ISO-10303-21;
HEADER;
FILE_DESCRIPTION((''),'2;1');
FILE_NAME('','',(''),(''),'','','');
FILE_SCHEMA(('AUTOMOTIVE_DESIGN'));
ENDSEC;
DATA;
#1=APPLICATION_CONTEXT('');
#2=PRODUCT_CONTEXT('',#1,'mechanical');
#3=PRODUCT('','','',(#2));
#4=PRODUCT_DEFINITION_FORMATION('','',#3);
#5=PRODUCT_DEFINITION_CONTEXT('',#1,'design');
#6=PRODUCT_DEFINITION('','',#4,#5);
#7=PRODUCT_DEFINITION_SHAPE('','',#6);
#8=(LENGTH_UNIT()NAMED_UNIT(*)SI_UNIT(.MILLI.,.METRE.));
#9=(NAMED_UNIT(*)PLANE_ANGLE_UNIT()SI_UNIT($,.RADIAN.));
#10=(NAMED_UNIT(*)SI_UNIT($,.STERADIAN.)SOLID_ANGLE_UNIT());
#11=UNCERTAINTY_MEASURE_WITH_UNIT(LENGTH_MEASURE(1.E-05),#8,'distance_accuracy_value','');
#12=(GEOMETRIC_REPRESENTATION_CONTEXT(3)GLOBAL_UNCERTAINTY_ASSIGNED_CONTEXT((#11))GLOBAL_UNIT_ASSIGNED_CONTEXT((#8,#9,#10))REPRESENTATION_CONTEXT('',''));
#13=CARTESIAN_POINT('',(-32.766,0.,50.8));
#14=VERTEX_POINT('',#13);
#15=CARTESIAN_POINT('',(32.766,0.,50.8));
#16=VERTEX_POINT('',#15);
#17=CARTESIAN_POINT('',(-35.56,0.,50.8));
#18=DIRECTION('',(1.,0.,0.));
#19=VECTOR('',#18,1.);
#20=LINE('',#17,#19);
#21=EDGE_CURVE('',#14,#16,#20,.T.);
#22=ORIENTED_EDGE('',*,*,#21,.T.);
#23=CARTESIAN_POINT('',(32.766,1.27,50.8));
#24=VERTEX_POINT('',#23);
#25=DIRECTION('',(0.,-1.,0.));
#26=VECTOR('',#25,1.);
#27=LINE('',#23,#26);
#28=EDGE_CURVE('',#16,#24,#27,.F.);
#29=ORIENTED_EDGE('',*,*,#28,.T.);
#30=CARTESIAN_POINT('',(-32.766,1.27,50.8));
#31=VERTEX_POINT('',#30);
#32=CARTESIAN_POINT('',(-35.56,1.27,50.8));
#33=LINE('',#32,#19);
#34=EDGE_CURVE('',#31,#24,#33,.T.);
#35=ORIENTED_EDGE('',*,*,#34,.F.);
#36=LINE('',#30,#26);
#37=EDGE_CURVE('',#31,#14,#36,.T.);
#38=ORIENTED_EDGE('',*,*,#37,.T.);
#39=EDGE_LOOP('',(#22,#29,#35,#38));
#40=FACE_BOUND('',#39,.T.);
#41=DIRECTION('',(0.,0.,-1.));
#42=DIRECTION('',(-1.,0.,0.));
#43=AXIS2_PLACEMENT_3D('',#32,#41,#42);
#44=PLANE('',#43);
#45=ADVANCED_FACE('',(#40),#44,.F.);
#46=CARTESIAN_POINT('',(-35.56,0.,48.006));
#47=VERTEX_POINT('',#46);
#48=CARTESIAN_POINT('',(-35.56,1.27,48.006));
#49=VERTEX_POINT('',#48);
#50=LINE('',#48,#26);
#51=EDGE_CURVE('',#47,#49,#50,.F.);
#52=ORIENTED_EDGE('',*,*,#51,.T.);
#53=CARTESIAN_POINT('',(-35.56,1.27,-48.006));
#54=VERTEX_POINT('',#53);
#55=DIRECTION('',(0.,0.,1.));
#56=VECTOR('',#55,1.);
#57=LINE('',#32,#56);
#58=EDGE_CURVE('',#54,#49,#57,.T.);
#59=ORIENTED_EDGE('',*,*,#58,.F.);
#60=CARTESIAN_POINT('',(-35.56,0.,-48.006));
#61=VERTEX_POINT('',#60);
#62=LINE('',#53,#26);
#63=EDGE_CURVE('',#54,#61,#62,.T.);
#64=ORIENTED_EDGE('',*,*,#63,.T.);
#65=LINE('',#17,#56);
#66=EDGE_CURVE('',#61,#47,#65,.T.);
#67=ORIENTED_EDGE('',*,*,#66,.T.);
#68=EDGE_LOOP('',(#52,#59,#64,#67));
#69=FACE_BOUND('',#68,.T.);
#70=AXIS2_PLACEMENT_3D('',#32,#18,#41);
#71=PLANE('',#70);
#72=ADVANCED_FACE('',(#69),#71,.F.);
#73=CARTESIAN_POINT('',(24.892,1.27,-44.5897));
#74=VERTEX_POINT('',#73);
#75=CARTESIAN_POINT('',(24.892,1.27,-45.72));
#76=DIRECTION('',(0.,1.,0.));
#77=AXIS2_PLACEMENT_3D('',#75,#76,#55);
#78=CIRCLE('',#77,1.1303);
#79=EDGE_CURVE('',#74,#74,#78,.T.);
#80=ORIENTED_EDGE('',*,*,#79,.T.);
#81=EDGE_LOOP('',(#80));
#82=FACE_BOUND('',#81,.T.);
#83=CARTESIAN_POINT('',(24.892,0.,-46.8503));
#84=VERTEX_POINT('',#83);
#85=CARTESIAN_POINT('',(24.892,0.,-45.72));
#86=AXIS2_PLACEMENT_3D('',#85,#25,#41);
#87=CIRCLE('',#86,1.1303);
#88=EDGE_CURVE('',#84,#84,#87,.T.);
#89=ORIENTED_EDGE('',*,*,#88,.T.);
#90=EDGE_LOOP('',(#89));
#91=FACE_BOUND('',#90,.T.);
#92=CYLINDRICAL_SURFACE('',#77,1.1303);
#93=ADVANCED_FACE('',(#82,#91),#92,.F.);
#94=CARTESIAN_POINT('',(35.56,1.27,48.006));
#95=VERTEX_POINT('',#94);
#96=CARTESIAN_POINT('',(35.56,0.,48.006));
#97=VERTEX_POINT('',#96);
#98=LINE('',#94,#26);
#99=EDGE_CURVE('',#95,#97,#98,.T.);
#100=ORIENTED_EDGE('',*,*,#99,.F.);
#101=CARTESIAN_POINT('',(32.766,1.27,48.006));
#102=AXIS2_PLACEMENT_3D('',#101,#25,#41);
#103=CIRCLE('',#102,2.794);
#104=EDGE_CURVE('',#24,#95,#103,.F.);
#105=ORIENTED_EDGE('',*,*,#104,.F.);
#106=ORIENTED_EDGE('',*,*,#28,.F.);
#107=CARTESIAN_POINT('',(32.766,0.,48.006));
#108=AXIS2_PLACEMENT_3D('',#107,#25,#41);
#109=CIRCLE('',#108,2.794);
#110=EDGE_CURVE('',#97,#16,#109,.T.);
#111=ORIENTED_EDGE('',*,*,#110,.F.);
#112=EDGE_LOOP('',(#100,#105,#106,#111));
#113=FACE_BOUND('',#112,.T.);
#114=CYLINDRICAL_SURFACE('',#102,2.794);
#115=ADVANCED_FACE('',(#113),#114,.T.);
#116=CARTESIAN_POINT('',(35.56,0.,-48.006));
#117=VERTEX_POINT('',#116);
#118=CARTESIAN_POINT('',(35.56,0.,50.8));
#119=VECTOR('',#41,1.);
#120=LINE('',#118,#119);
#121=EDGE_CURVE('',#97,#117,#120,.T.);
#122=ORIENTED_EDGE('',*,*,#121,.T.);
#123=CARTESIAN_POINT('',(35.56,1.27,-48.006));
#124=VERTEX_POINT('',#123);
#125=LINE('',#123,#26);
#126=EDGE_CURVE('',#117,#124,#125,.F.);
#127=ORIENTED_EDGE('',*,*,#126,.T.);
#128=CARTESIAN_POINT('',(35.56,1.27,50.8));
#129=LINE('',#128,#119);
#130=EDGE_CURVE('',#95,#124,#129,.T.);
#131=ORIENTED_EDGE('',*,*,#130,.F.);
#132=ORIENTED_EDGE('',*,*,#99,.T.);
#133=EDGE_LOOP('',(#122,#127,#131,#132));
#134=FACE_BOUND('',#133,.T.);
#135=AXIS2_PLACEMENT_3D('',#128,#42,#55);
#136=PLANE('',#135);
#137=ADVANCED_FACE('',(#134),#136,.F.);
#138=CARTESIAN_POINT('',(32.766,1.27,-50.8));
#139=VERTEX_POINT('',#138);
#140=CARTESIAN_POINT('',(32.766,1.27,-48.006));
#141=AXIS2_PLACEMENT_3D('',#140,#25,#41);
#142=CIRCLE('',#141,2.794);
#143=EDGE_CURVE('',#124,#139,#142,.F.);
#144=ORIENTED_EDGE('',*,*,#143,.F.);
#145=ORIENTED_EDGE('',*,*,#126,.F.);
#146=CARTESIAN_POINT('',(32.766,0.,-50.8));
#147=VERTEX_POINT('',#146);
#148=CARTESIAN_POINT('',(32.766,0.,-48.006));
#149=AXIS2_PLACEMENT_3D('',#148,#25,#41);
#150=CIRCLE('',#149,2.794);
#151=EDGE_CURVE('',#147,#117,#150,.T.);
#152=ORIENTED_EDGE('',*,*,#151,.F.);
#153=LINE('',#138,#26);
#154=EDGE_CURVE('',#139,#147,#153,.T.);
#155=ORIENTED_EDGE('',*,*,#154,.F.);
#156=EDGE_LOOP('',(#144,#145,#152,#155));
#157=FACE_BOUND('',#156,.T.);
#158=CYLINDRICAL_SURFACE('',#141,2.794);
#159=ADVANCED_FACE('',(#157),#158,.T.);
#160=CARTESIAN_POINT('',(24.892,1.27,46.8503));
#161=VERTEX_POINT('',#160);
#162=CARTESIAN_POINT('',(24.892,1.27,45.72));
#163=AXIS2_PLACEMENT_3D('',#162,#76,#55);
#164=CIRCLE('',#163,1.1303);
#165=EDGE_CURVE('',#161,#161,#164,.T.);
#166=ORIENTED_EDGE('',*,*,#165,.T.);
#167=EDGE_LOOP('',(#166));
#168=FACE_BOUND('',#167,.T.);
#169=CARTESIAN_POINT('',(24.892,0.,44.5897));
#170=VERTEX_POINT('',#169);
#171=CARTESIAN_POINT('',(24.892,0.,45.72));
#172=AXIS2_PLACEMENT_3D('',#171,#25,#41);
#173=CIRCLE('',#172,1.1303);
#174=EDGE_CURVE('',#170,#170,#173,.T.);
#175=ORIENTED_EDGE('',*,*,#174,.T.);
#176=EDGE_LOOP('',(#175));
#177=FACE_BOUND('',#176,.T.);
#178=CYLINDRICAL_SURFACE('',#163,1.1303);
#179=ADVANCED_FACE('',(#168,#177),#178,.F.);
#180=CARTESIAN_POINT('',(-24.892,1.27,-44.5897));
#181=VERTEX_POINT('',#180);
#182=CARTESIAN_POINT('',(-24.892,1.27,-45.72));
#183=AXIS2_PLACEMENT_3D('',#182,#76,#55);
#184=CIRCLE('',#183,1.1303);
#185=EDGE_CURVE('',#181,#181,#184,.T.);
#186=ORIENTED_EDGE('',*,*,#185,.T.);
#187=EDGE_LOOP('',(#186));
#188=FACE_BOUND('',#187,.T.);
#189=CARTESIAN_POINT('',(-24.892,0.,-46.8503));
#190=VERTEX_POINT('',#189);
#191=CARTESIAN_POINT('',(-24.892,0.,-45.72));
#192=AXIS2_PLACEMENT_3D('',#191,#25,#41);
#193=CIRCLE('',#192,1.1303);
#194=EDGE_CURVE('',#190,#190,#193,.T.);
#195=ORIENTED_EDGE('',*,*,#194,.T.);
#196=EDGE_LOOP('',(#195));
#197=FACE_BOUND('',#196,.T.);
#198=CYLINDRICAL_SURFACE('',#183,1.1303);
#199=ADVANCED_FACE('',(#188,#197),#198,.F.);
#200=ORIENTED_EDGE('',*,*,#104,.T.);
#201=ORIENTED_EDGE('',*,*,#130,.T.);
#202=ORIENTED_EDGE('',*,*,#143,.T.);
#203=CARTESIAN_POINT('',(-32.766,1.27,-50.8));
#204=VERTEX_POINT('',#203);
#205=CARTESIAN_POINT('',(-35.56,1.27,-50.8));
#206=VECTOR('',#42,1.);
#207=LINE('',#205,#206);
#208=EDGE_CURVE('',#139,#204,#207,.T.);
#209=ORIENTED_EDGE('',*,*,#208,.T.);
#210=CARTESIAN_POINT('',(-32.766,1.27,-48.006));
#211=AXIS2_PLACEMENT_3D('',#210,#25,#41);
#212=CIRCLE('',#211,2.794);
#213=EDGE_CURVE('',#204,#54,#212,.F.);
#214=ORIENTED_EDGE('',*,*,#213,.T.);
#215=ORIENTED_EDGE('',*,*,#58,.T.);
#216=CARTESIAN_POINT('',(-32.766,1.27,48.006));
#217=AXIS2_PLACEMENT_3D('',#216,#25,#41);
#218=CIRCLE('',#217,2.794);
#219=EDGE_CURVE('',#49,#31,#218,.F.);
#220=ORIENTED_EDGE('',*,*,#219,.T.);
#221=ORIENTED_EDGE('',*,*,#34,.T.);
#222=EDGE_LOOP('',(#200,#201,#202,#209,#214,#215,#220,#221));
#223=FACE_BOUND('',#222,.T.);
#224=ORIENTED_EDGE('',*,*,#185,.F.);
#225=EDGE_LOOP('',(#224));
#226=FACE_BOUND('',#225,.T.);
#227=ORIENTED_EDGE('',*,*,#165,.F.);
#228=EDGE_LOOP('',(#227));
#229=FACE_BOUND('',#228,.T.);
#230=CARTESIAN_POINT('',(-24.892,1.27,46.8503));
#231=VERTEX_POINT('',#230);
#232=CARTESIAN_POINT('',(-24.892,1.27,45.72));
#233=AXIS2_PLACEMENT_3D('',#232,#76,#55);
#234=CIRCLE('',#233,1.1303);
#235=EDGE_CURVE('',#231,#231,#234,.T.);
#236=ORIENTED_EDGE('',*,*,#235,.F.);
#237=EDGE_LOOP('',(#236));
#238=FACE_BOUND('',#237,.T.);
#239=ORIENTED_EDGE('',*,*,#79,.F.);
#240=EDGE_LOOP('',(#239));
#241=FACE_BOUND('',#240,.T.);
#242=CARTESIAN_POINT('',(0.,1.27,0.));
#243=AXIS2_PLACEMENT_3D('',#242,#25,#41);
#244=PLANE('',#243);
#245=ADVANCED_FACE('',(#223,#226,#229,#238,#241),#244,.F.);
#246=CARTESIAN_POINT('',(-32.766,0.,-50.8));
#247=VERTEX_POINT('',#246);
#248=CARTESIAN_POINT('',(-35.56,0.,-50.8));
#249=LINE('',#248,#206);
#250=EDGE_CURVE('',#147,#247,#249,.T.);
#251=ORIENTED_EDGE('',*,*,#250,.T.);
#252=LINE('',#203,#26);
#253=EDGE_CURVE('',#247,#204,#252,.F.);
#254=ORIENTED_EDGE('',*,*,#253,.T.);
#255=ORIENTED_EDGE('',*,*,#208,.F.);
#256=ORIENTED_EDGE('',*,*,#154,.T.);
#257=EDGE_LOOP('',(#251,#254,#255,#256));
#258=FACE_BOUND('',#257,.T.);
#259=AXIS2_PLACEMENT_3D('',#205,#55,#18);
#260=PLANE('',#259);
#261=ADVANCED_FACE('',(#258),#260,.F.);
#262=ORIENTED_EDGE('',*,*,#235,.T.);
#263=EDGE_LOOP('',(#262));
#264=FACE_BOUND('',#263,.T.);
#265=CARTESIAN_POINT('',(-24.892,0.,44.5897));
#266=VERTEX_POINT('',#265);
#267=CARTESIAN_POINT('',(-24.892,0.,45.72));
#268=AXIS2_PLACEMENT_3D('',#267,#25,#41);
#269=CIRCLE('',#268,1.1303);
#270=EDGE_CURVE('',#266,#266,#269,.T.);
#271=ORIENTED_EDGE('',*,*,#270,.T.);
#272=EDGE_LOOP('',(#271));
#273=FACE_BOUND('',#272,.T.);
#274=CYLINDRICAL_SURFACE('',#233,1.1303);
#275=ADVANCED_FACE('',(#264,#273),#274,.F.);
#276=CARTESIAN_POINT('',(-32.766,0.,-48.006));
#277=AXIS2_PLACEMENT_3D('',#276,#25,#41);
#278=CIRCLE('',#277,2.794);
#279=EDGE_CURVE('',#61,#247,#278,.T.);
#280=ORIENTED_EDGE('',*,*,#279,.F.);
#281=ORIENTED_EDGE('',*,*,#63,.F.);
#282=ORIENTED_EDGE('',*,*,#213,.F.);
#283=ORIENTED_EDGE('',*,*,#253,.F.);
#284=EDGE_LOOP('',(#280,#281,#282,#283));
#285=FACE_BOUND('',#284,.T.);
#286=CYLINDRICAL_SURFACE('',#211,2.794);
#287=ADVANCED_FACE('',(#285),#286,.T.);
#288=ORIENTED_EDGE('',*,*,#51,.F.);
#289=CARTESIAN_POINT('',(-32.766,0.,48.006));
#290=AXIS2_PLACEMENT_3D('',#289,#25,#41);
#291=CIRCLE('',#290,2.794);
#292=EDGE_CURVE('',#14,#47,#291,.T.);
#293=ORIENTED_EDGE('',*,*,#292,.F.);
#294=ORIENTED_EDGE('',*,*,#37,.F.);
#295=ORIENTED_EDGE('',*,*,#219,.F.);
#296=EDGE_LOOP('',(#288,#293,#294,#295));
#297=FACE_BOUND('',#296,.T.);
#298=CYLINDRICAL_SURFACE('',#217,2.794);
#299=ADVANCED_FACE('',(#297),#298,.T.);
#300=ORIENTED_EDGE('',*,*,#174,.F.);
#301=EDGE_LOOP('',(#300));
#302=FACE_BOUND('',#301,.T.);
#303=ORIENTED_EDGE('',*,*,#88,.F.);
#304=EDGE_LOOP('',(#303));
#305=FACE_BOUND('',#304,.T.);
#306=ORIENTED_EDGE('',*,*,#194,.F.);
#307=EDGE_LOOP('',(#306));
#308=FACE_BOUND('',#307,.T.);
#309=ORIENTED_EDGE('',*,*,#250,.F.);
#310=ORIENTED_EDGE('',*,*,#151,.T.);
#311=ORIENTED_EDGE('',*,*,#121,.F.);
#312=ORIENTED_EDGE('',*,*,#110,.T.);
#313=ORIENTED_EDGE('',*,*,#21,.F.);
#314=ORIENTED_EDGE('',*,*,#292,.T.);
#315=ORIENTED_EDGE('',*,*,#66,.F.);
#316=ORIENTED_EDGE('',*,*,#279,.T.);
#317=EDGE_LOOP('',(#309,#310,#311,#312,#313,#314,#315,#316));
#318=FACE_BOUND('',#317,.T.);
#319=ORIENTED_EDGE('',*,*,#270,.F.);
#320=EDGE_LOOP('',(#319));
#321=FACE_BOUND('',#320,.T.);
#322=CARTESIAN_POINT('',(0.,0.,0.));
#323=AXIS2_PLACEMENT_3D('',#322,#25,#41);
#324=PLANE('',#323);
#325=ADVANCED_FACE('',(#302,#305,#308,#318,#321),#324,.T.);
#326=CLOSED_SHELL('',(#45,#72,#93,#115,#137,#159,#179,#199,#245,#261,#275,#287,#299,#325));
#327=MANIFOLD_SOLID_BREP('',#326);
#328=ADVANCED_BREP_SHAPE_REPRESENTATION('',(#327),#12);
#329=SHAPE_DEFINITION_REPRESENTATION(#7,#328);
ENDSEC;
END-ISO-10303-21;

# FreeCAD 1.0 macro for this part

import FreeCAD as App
import Part
import Sketcher
from FreeCAD import Vector
Q = App.Units.Quantity


def edges_at(feature, points):
    """Names of the edges that pass closest to the given points."""
    edges = feature.Shape.Edges
    near = lambda p: min(range(len(edges)), key=lambda i: edges[i].distToShape(Part.Vertex(*p))[0])
    return sorted({f"Edge{near(p) + 1}" for p in points})

doc = App.newDocument("Part")
body = doc.addObject("PartDesign::Body", "Body")

# Sketch on XZ plane
sketch1 = doc.addObject("Sketcher::SketchObject", "Sketch")
body.addObject(sketch1)
sketch1.AttachmentSupport = (doc.XZ_Plane, [""])
sketch1.MapMode = "FlatFace"
sketch1.addGeometry([
    Part.LineSegment(Vector(-36, -51, 0), Vector(-36, 51, 0)),
    Part.LineSegment(Vector(-36, 51, 0), Vector(36, 51, 0)),
    Part.LineSegment(Vector(36, 51, 0), Vector(36, -51, 0)),
    Part.LineSegment(Vector(36, -51, 0), Vector(-36, -51, 0)),
], False)
sketch1.addConstraint([
    Sketcher.Constraint("Coincident", 0, 2, 1, 1),
    Sketcher.Constraint("Coincident", 1, 2, 2, 1),
    Sketcher.Constraint("Coincident", 2, 2, 3, 1),
    Sketcher.Constraint("Coincident", 3, 2, 0, 1),
    Sketcher.Constraint("Vertical", 0),
    Sketcher.Constraint("Horizontal", 1),
    Sketcher.Constraint("Vertical", 2),
    Sketcher.Constraint("Horizontal", 3),
    Sketcher.Constraint("Symmetric", 0, 2, 2, 2, -1, 1),
    Sketcher.Constraint("DistanceY", 0, 1, 0, 2, Q("4 in")),
    Sketcher.Constraint("DistanceX", 1, 1, 1, 2, Q("2.8 in")),
])
pad1 = doc.addObject("PartDesign::Pad", "Pad")
body.addObject(pad1)
pad1.Profile = sketch1
pad1.Length = Q("0.05 in")
pad1.Reversed = True
doc.recompute()

fillet = doc.addObject("PartDesign::Fillet", "Fillet")
body.addObject(fillet)
fillet.Base = (pad1, edges_at(pad1, [
    (35.56, 0.635, 50.8),
    (-35.56, 0.635, 50.8),
    (-35.56, 0.635, -50.8),
    (35.56, 0.635, -50.8),
]))
fillet.Radius = Q("0.11 in")

# Sketch on XZ plane
sketch2 = doc.addObject("Sketcher::SketchObject", "Sketch001")
body.addObject(sketch2)
sketch2.AttachmentSupport = (doc.XZ_Plane, [""])
sketch2.MapMode = "FlatFace"
sketch2.AttachmentOffset = App.Placement(Vector(0, 0, -0.05 * 25.4), App.Rotation())
sketch2.addGeometry([
    Part.Circle(Vector(-24.9, -45.7, 0), Vector(0, 0, 1), 1.1),
    Part.Circle(Vector(24.9, -45.7, 0), Vector(0, 0, 1), 1.1),
    Part.Circle(Vector(-24.9, 45.7, 0), Vector(0, 0, 1), 1.1),
    Part.Circle(Vector(24.9, 45.7, 0), Vector(0, 0, 1), 1.1),
], False)
sketch2.addConstraint([
    Sketcher.Constraint("Equal", 0, 1),
    Sketcher.Constraint("Equal", 1, 2),
    Sketcher.Constraint("Equal", 2, 3),
    Sketcher.Constraint("Symmetric", 1, 3, 2, 3, -1, 1),
    Sketcher.Constraint("Symmetric", 0, 3, 3, 3, -1, 1),
    Sketcher.Constraint("Symmetric", 0, 3, 1, 3, -2),
    Sketcher.Constraint("Diameter", 0, Q("0.089 in")),
    Sketcher.Constraint("DistanceY", 0, 3, -1, 1, Q("1.8 in")),
    Sketcher.Constraint("DistanceX", 0, 3, -1, 1, Q("0.98 in")),
])
doc.recompute()
hole = doc.addObject("PartDesign::Hole", "Hole")
body.addObject(hole)
hole.Profile = sketch2
hole.ThreadType = "None"
hole.Diameter = Q("0.089 in")
hole.DepthType = "Dimension"
hole.Depth = Q("0.09 in")
hole.DrillPoint = "Angled"
hole.DrillPointAngle = 118
hole.Reversed = True

doc.recompute()
